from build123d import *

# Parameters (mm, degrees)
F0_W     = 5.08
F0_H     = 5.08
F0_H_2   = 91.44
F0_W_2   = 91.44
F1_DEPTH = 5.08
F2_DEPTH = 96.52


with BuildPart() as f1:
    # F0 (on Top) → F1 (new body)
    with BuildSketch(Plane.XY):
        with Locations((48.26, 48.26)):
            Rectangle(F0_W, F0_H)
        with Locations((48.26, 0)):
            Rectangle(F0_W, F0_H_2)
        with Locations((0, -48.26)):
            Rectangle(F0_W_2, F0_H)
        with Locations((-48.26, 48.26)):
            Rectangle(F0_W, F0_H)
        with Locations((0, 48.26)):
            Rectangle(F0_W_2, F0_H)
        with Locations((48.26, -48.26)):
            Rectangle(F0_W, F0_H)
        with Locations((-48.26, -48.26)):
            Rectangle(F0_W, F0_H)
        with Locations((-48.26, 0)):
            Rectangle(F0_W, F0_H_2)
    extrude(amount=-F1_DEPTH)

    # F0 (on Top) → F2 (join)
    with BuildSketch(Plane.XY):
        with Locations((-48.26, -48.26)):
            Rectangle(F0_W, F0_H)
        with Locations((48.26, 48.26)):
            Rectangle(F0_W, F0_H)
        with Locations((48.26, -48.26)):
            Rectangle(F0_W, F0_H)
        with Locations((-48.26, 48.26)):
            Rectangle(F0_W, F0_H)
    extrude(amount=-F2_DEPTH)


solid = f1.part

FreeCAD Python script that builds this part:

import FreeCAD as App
import Part
import Sketcher
Q = App.Units.Quantity

doc = App.newDocument("Part")
params = doc.addObject("Spreadsheet::Sheet", "Params")
for row, (alias, value) in enumerate([
    ("sketch1_width", "4 in"),
    ("sketch1_width2", "3.6 in"),
    ("pad1_length", "0.2 in"),
    ("sketch2_width", "0.2 in"),
    ("pad2_length", "3.8 in"),
], start=1):
    params.set(f"A{row}", alias)
    params.set(f"B{row}", "=" + value)
    params.setAlias(f"B{row}", alias)

body = doc.addObject("PartDesign::Body", "Body")

# Sketch on XY plane
sketch1 = body.newObject("Sketcher::SketchObject", "Sketch")
sketch1.AttachmentSupport = (doc.getObject("XY_Plane"), [""])
sketch1.MapMode = "FlatFace"
sketch1.addGeometry(Part.LineSegment(App.Vector(-50.8, -50.8, 0), App.Vector(50.8, -50.8, 0)), False)
sketch1.addGeometry(Part.LineSegment(App.Vector(50.8, -50.8, 0), App.Vector(50.8, 50.8, 0)), False)
sketch1.addGeometry(Part.LineSegment(App.Vector(50.8, 50.8, 0), App.Vector(-50.8, 50.8, 0)), False)
sketch1.addGeometry(Part.LineSegment(App.Vector(-50.8, 50.8, 0), App.Vector(-50.8, -50.8, 0)), False)
sketch1.addGeometry(Part.LineSegment(App.Vector(45.72, 45.72, 0), App.Vector(45.72, -45.72, 0)), False)
sketch1.addGeometry(Part.LineSegment(App.Vector(45.72, -45.72, 0), App.Vector(-45.72, -45.72, 0)), False)
sketch1.addGeometry(Part.LineSegment(App.Vector(-45.72, -45.72, 0), App.Vector(-45.72, 45.72, 0)), False)
sketch1.addGeometry(Part.LineSegment(App.Vector(-45.72, 45.72, 0), App.Vector(45.72, 45.72, 0)), False)
sketch1.addConstraint(Sketcher.Constraint("Coincident", 0, 2, 1, 1))
sketch1.addConstraint(Sketcher.Constraint("Coincident", 1, 2, 2, 1))
sketch1.addConstraint(Sketcher.Constraint("Coincident", 2, 2, 3, 1))
sketch1.addConstraint(Sketcher.Constraint("Coincident", 3, 2, 0, 1))
sketch1.addConstraint(Sketcher.Constraint("Coincident", 4, 2, 5, 1))
sketch1.addConstraint(Sketcher.Constraint("Coincident", 5, 2, 6, 1))
sketch1.addConstraint(Sketcher.Constraint("Coincident", 6, 2, 7, 1))
sketch1.addConstraint(Sketcher.Constraint("Coincident", 7, 2, 4, 1))
sketch1.addConstraint(Sketcher.Constraint("Horizontal", 0))
sketch1.addConstraint(Sketcher.Constraint("Vertical", 1))
sketch1.addConstraint(Sketcher.Constraint("Horizontal", 2))
sketch1.addConstraint(Sketcher.Constraint("Vertical", 3))
sketch1.addConstraint(Sketcher.Constraint("Vertical", 4))
sketch1.addConstraint(Sketcher.Constraint("Horizontal", 5))
sketch1.addConstraint(Sketcher.Constraint("Vertical", 6))
sketch1.addConstraint(Sketcher.Constraint("Horizontal", 7))
sketch1.addConstraint(Sketcher.Constraint("Symmetric", 0, 2, 2, 2, -1, 1))
sketch1.addConstraint(Sketcher.Constraint("Symmetric", 4, 2, 6, 2, -1, 1))
sketch1.addConstraint(Sketcher.Constraint("Equal", 2, 1))
sketch1.addConstraint(Sketcher.Constraint("Equal", 7, 4))
sketch1.addConstraint(Sketcher.Constraint("DistanceX", 0, 1, 0, 2, Q("4 in")))
sketch1.addConstraint(Sketcher.Constraint("DistanceX", 5, 2, 5, 1, Q("3.6 in")))
sketch1.setExpression("Constraints[20]", "Params.sketch1_width")
sketch1.setExpression("Constraints[21]", "Params.sketch1_width2")
pad1 = body.newObject("PartDesign::Pad", "Pad")
pad1.Profile = sketch1
pad1.setExpression("Length", "Params.pad1_length")
pad1.Reversed = True

# Sketch on XY plane
sketch2 = body.newObject("Sketcher::SketchObject", "Sketch001")
sketch2.AttachmentSupport = (doc.getObject("XY_Plane"), [""])
sketch2.MapMode = "FlatFace"
sketch2.addGeometry(Part.LineSegment(App.Vector(-50.8, -45.72, 0), App.Vector(-50.8, -50.8, 0)), False)
sketch2.addGeometry(Part.LineSegment(App.Vector(-50.8, -50.8, 0), App.Vector(-45.72, -50.8, 0)), False)
sketch2.addGeometry(Part.LineSegment(App.Vector(-45.72, -50.8, 0), App.Vector(-45.72, -45.72, 0)), False)
sketch2.addGeometry(Part.LineSegment(App.Vector(-45.72, -45.72, 0), App.Vector(-50.8, -45.72, 0)), False)
sketch2.addGeometry(Part.LineSegment(App.Vector(45.72, 50.8, 0), App.Vector(45.72, 45.72, 0)), False)
sketch2.addGeometry(Part.LineSegment(App.Vector(45.72, 45.72, 0), App.Vector(50.8, 45.72, 0)), False)
sketch2.addGeometry(Part.LineSegment(App.Vector(50.8, 45.72, 0), App.Vector(50.8, 50.8, 0)), False)
sketch2.addGeometry(Part.LineSegment(App.Vector(50.8, 50.8, 0), App.Vector(45.72, 50.8, 0)), False)
sketch2.addGeometry(Part.LineSegment(App.Vector(45.72, -45.72, 0), App.Vector(45.72, -50.8, 0)), False)
sketch2.addGeometry(Part.LineSegment(App.Vector(45.72, -50.8, 0), App.Vector(50.8, -50.8, 0)), False)
sketch2.addGeometry(Part.LineSegment(App.Vector(50.8, -50.8, 0), App.Vector(50.8, -45.72, 0)), False)
sketch2.addGeometry(Part.LineSegment(App.Vector(50.8, -45.72, 0), App.Vector(45.72, -45.72, 0)), False)
sketch2.addGeometry(Part.LineSegment(App.Vector(-50.8, 50.8, 0), App.Vector(-50.8, 45.72, 0)), False)
sketch2.addGeometry(Part.LineSegment(App.Vector(-50.8, 45.72, 0), App.Vector(-45.72, 45.72, 0)), False)
sketch2.addGeometry(Part.LineSegment(App.Vector(-45.72, 45.72, 0), App.Vector(-45.72, 50.8, 0)), False)
sketch2.addGeometry(Part.LineSegment(App.Vector(-45.72, 50.8, 0), App.Vector(-50.8, 50.8, 0)), False)
sketch2.addConstraint(Sketcher.Constraint("Coincident", 0, 2, 1, 1))
sketch2.addConstraint(Sketcher.Constraint("Coincident", 1, 2, 2, 1))
sketch2.addConstraint(Sketcher.Constraint("Coincident", 2, 2, 3, 1))
sketch2.addConstraint(Sketcher.Constraint("Coincident", 3, 2, 0, 1))
sketch2.addConstraint(Sketcher.Constraint("Coincident", 4, 2, 5, 1))
sketch2.addConstraint(Sketcher.Constraint("Coincident", 5, 2, 6, 1))
sketch2.addConstraint(Sketcher.Constraint("Coincident", 6, 2, 7, 1))
sketch2.addConstraint(Sketcher.Constraint("Coincident", 7, 2, 4, 1))
sketch2.addConstraint(Sketcher.Constraint("Coincident", 8, 2, 9, 1))
sketch2.addConstraint(Sketcher.Constraint("Coincident", 9, 2, 10, 1))
sketch2.addConstraint(Sketcher.Constraint("Coincident", 10, 2, 11, 1))
sketch2.addConstraint(Sketcher.Constraint("Coincident", 11, 2, 8, 1))
sketch2.addConstraint(Sketcher.Constraint("Coincident", 12, 2, 13, 1))
sketch2.addConstraint(Sketcher.Constraint("Coincident", 13, 2, 14, 1))
sketch2.addConstraint(Sketcher.Constraint("Coincident", 14, 2, 15, 1))
sketch2.addConstraint(Sketcher.Constraint("Coincident", 15, 2, 12, 1))
sketch2.addConstraint(Sketcher.Constraint("Vertical", 0))
sketch2.addConstraint(Sketcher.Constraint("Horizontal", 1))
sketch2.addConstraint(Sketcher.Constraint("Vertical", 2))
sketch2.addConstraint(Sketcher.Constraint("Horizontal", 3))
sketch2.addConstraint(Sketcher.Constraint("Vertical", 4))
sketch2.addConstraint(Sketcher.Constraint("Horizontal", 5))
sketch2.addConstraint(Sketcher.Constraint("Vertical", 6))
sketch2.addConstraint(Sketcher.Constraint("Horizontal", 7))
sketch2.addConstraint(Sketcher.Constraint("Vertical", 8))
sketch2.addConstraint(Sketcher.Constraint("Horizontal", 9))
sketch2.addConstraint(Sketcher.Constraint("Vertical", 10))
sketch2.addConstraint(Sketcher.Constraint("Horizontal", 11))
sketch2.addConstraint(Sketcher.Constraint("Vertical", 12))
sketch2.addConstraint(Sketcher.Constraint("Horizontal", 13))
sketch2.addConstraint(Sketcher.Constraint("Vertical", 14))
sketch2.addConstraint(Sketcher.Constraint("Horizontal", 15))
sketch2.addConstraint(Sketcher.Constraint("Symmetric", 2, 2, 4, 2, -1, 1))
sketch2.addConstraint(Sketcher.Constraint("Symmetric", 0, 2, 6, 2, -1, 1))
sketch2.addConstraint(Sketcher.Constraint("Symmetric", 10, 2, 12, 2, -1, 1))
sketch2.addConstraint(Sketcher.Constraint("Symmetric", 8, 2, 14, 2, -1, 1))
sketch2.addConstraint(Sketcher.Constraint("Symmetric", 1, 2, 8, 2, -2))
sketch2.addConstraint(Sketcher.Constraint("Symmetric", 3, 2, 10, 2, -2))
sketch2.addConstraint(Sketcher.Constraint("Equal", 15, 0))
sketch2.addConstraint(Sketcher.Constraint("DistanceX", 1, 1, 1, 2, Q("0.2 in")))
sketch2.addConstraint(Sketcher.Constraint("DistanceX", 0, 2, -1, 1, Q("2 in")))
sketch2.addConstraint(Sketcher.Constraint("DistanceY", 0, 2, -1, 1, Q("2 in")))
sketch2.setExpression("Constraints[39]", "Params.sketch2_width")
pad2 = body.newObject("PartDesign::Pad", "Pad001")
pad2.Profile = sketch2
pad2.setExpression("Length", "Params.pad2_length")
pad2.Reversed = True

doc.recompute()
